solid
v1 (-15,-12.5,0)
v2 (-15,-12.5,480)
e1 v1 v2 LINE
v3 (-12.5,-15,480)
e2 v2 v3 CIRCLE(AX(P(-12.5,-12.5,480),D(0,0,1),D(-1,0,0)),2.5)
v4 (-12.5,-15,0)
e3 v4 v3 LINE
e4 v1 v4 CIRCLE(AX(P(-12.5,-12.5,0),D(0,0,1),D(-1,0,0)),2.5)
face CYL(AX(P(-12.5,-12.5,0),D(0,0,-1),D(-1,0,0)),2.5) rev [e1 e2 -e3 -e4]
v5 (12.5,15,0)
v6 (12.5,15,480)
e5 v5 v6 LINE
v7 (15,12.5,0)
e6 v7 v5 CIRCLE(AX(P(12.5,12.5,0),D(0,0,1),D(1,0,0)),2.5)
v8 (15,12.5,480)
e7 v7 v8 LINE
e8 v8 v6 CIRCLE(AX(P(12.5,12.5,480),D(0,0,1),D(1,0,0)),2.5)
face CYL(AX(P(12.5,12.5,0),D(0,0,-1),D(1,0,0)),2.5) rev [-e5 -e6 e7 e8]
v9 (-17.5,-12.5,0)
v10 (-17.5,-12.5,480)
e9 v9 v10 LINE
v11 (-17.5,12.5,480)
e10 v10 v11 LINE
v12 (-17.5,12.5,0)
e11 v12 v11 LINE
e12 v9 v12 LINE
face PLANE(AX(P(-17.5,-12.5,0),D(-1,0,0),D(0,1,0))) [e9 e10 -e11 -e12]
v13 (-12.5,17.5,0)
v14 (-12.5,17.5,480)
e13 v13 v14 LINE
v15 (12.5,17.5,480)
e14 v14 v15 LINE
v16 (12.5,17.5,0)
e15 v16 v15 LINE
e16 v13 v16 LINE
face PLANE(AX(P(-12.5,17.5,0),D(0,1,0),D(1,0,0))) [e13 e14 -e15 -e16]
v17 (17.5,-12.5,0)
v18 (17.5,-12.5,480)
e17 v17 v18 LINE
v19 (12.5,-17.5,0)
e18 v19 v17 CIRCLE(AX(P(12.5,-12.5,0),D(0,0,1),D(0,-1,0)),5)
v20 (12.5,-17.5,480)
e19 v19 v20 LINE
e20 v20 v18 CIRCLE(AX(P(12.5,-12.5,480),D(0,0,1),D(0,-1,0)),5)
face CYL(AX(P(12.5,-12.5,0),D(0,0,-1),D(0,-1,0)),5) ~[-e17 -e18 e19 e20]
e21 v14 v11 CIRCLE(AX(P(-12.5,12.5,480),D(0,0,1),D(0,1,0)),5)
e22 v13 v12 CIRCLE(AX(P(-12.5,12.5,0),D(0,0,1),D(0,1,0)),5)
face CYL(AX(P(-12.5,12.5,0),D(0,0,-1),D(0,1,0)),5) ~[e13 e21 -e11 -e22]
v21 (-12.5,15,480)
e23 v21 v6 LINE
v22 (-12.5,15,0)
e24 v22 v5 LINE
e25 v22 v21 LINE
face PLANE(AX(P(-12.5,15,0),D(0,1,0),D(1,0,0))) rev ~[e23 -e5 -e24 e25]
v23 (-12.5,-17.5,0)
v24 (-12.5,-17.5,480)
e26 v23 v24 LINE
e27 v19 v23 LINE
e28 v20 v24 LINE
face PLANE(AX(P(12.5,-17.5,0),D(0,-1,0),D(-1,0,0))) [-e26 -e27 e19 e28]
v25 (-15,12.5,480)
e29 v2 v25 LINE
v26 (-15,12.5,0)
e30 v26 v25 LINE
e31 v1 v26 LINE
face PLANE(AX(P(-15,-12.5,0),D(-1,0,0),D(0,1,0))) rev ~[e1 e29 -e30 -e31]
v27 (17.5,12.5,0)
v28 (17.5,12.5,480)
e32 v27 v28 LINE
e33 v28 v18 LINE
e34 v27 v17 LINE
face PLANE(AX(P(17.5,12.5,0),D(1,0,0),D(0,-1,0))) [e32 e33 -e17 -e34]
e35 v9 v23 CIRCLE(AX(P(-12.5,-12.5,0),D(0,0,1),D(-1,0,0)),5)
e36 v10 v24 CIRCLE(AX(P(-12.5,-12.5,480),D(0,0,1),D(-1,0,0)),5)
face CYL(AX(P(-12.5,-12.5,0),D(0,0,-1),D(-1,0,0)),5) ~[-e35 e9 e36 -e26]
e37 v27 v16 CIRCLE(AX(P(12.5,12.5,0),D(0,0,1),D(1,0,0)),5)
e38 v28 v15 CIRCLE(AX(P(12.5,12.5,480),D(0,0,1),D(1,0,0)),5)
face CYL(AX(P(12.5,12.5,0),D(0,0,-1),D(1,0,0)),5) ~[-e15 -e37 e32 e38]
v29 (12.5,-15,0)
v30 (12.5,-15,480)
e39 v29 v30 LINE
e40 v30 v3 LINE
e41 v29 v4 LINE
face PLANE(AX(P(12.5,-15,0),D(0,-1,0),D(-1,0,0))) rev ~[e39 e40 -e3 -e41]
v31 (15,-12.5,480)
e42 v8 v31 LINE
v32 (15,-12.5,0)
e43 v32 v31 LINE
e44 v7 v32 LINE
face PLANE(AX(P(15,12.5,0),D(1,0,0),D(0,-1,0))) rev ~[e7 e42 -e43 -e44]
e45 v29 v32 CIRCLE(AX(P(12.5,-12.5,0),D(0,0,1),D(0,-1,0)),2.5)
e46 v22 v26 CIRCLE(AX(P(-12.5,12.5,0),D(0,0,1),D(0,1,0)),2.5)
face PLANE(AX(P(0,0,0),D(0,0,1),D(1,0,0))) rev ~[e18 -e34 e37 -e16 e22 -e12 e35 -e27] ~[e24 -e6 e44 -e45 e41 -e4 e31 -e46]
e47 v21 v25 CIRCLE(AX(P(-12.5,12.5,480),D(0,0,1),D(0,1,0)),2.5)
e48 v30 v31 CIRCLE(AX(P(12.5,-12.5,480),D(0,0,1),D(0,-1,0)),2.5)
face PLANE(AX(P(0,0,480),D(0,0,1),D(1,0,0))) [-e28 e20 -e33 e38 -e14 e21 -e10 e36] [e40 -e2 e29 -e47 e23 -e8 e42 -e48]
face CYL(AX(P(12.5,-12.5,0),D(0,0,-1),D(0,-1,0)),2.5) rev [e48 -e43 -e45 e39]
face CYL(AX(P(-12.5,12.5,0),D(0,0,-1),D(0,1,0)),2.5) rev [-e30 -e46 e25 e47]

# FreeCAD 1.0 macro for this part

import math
import FreeCAD as App
import Part
import Sketcher

doc = App.newDocument("Part")
body = doc.addObject("PartDesign::Body", "Body")

# Sketch on XY plane
sketch1 = doc.addObject("Sketcher::SketchObject", "Sketch")
body.addObject(sketch1)
sketch1.AttachmentSupport = (doc.XY_Plane, [""])
sketch1.MapMode = "FlatFace"
sketch1.addGeometry([
    Part.LineSegment(App.Vector(-17.5, 12.5, 0), App.Vector(-17.5, -12.5, 0)),  # 0
    Part.ArcOfCircle(Part.Circle(App.Vector(-12.5, -12.5, 0), App.Vector(0, 0, 1), 5), math.radians(180), math.radians(270)),  # 1
    Part.LineSegment(App.Vector(-12.5, -17.5, 0), App.Vector(12.5, -17.5, 0)),  # 2
    Part.ArcOfCircle(Part.Circle(App.Vector(12.5, -12.5, 0), App.Vector(0, 0, 1), 5), math.radians(-90), math.radians(0)),  # 3
    Part.LineSegment(App.Vector(17.5, -12.5, 0), App.Vector(17.5, 12.5, 0)),  # 4
    Part.ArcOfCircle(Part.Circle(App.Vector(12.5, 12.5, 0), App.Vector(0, 0, 1), 5), math.radians(0), math.radians(90)),  # 5
    Part.LineSegment(App.Vector(12.5, 17.5, 0), App.Vector(-12.5, 17.5, 0)),  # 6
    Part.ArcOfCircle(Part.Circle(App.Vector(-12.5, 12.5, 0), App.Vector(0, 0, 1), 5), math.radians(90), math.radians(180)),  # 7
    Part.ArcOfCircle(Part.Circle(App.Vector(-12.5, 12.5, 0), App.Vector(0, 0, 1), 2.5), math.radians(90), math.radians(180)),  # 8
    Part.LineSegment(App.Vector(-12.5, 15, 0), App.Vector(12.5, 15, 0)),  # 9
    Part.ArcOfCircle(Part.Circle(App.Vector(12.5, 12.5, 0), App.Vector(0, 0, 1), 2.5), math.radians(0), math.radians(90)),  # 10
    Part.LineSegment(App.Vector(15, 12.5, 0), App.Vector(15, -12.5, 0)),  # 11
    Part.ArcOfCircle(Part.Circle(App.Vector(12.5, -12.5, 0), App.Vector(0, 0, 1), 2.5), math.radians(-90), math.radians(0)),  # 12
    Part.LineSegment(App.Vector(12.5, -15, 0), App.Vector(-12.5, -15, 0)),  # 13
    Part.ArcOfCircle(Part.Circle(App.Vector(-12.5, -12.5, 0), App.Vector(0, 0, 1), 2.5), math.radians(180), math.radians(270)),  # 14
    Part.LineSegment(App.Vector(-15, -12.5, 0), App.Vector(-15, 12.5, 0)),  # 15
], False)
sketch1.addConstraint([
    Sketcher.Constraint("Tangent", 0, 2, 1, 1),
    Sketcher.Constraint("Tangent", 1, 2, 2, 1),
    Sketcher.Constraint("Tangent", 2, 2, 3, 1),
    Sketcher.Constraint("Tangent", 3, 2, 4, 1),
    Sketcher.Constraint("Tangent", 4, 2, 5, 1),
    Sketcher.Constraint("Tangent", 5, 2, 6, 1),
    Sketcher.Constraint("Tangent", 6, 2, 7, 1),
    Sketcher.Constraint("Tangent", 7, 2, 0, 1),
    Sketcher.Constraint("Tangent", 8, 1, 9, 1),
    Sketcher.Constraint("Tangent", 9, 2, 10, 2),
    Sketcher.Constraint("Tangent", 10, 1, 11, 1),
    Sketcher.Constraint("Tangent", 11, 2, 12, 2),
    Sketcher.Constraint("Tangent", 12, 1, 13, 1),
    Sketcher.Constraint("Tangent", 13, 2, 14, 2),
    Sketcher.Constraint("Tangent", 14, 1, 15, 1),
    Sketcher.Constraint("Tangent", 15, 2, 8, 2),
    Sketcher.Constraint("Vertical", 0),
    Sketcher.Constraint("Horizontal", 2),
    Sketcher.Constraint("Vertical", 4),
    Sketcher.Constraint("Horizontal", 6),
    Sketcher.Constraint("Horizontal", 9),
    Sketcher.Constraint("Vertical", 11),
    Sketcher.Constraint("Horizontal", 13),
    Sketcher.Constraint("Vertical", 15),
    Sketcher.Constraint("Coincident", 8, 3, 7, 3),
    Sketcher.Constraint("Coincident", 10, 3, 5, 3),
    Sketcher.Constraint("Coincident", 12, 3, 3, 3),
    Sketcher.Constraint("Equal", 1, 3),
    Sketcher.Constraint("Equal", 3, 5),
    Sketcher.Constraint("Equal", 5, 7),
    Sketcher.Constraint("Equal", 12, 14),
    Sketcher.Constraint("Symmetric", 1, 3, 5, 3, -1, 1),
    Sketcher.Constraint("Equal", 13, 0),
    Sketcher.Constraint("Radius", 1, 5.0),
    Sketcher.Constraint("Radius", 8, 2.5),
    Sketcher.Constraint("DistanceX", 0, 2, -1, 1, 17.5),
])
pad1 = doc.addObject("PartDesign::Pad", "Pad")
body.addObject(pad1)
pad1.Profile = sketch1
pad1.Length = 480

doc.recompute()
